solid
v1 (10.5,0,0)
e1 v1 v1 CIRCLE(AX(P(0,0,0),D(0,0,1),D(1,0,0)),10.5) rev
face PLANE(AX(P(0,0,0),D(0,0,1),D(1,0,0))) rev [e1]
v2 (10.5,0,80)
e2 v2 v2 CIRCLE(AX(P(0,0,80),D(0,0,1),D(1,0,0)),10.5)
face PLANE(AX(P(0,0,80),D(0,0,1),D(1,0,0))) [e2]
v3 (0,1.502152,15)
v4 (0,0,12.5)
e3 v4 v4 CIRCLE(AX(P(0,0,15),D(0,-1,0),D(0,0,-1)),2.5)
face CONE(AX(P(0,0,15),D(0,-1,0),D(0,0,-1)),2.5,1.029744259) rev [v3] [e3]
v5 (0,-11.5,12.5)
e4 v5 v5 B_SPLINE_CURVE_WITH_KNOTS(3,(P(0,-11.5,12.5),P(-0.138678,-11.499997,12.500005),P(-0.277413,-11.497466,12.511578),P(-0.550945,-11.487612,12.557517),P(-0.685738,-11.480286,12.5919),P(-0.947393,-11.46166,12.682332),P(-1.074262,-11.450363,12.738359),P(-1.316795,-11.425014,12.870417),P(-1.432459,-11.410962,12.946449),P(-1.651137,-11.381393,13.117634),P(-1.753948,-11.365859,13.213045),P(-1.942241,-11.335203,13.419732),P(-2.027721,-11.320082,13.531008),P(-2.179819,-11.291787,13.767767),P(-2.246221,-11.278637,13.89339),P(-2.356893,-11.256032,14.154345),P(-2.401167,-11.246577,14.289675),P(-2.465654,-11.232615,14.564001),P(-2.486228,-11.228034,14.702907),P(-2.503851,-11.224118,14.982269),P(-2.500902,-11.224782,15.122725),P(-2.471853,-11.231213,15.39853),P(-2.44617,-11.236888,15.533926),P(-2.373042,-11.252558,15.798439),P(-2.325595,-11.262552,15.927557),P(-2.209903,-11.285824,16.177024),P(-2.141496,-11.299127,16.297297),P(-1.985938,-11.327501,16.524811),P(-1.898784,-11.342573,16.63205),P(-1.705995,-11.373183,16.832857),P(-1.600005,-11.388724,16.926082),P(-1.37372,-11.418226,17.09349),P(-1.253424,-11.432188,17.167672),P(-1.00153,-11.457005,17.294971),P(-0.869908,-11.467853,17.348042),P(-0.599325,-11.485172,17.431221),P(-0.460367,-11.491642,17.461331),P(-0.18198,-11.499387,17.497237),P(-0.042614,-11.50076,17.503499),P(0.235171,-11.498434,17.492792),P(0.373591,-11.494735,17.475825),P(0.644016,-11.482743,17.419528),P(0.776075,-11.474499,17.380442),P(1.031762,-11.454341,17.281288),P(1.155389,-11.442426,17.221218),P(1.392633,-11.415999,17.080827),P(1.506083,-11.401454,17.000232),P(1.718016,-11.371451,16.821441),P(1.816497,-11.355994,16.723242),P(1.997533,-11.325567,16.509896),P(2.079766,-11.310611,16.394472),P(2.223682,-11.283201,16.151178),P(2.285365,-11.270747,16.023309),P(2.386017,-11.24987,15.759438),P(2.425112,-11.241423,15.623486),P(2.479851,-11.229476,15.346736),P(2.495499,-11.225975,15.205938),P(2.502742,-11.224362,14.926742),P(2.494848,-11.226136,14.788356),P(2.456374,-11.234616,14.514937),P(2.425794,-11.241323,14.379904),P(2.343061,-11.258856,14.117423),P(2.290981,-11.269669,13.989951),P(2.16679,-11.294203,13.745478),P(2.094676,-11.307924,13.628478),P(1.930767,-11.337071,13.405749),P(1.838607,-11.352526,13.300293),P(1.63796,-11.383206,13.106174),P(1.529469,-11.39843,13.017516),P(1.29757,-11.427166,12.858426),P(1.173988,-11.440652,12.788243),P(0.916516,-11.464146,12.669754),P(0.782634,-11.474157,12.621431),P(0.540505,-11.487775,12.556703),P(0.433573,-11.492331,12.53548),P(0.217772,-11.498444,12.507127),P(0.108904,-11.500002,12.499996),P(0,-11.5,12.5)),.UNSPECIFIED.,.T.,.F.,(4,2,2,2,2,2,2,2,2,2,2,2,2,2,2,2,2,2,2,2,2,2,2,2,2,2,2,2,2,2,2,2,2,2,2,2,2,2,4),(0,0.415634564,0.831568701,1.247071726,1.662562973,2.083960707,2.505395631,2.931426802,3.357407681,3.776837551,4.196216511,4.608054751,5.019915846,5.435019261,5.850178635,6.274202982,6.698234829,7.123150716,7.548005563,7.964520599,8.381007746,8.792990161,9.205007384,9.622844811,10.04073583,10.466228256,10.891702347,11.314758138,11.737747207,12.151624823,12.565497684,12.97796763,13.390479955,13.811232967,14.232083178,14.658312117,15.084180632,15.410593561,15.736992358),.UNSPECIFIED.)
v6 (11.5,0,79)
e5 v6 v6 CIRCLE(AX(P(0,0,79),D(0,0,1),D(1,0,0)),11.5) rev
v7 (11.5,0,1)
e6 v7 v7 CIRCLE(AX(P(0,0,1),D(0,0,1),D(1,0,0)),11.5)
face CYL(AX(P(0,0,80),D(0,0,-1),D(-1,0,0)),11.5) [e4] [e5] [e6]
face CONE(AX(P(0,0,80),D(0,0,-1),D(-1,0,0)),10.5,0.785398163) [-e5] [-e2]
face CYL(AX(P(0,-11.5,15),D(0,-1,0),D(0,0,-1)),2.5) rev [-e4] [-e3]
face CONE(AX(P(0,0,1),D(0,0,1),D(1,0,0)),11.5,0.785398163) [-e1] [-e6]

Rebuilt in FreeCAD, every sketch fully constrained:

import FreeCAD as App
import Part
import Sketcher
Q = App.Units.Quantity


def edges_at(feature, points):
    """Names of the edges that pass closest to the given points."""
    edges = feature.Shape.Edges
    near = lambda p: min(range(len(edges)), key=lambda i: edges[i].distToShape(Part.Vertex(*p))[0])
    return sorted({f"Edge{near(p) + 1}" for p in points})

doc = App.newDocument("Part")
params = doc.addObject("Spreadsheet::Sheet", "Params")
for row, (alias, value) in enumerate([
    ("sketch1_diameter", "23 mm"),
    ("pad1_length", "80 mm"),
    ("chamfer_size", "1 mm"),
    ("sketch2_diameter", "5 mm"),
    ("hole_diameter", "5 mm"),
    ("hole_depth", "11.5 mm"),
], start=1):
    params.set(f"A{row}", alias)
    params.set(f"B{row}", "=" + value)
    params.setAlias(f"B{row}", alias)

body = doc.addObject("PartDesign::Body", "Body")

sketch1 = body.newObject("Sketcher::SketchObject", "Sketch")
sketch1.AttachmentSupport = (doc.getObject("XY_Plane"), [""])
sketch1.MapMode = "FlatFace"
sketch1.addGeometry(Part.Circle(App.Vector(0, 0, 0), App.Vector(0, 0, 1), 12), False)
sketch1.addConstraint([
    Sketcher.Constraint("Coincident", 0, 3, -1, 1),
    Sketcher.Constraint("Diameter", 0, Q("23 mm")),
])
sketch1.setExpression("Constraints[1]", "Params.sketch1_diameter")
pad1 = body.newObject("PartDesign::Pad", "Pad")
pad1.Profile = sketch1
pad1.setExpression("Length", "Params.pad1_length")
doc.recompute()

chamfer = body.newObject("PartDesign::Chamfer", "Chamfer")
chamfer.Base = (pad1, edges_at(pad1, [(-11.5, 0, 0), (-11.5, 0, 80)]))
chamfer.setExpression("Size", "Params.chamfer_size")

sketch2 = body.newObject("Sketcher::SketchObject", "Sketch001")
sketch2.AttachmentSupport = (doc.getObject("XZ_Plane"), [""])
sketch2.MapMode = "FlatFace"
sketch2.AttachmentOffset = App.Placement(App.Vector(0, 0, 11.5), App.Rotation())
sketch2.addGeometry(Part.Circle(App.Vector(0, 15, 0), App.Vector(0, 0, 1), 2.5), False)
sketch2.addConstraint([
    Sketcher.Constraint("PointOnObject", 0, 3, -2),
    Sketcher.Constraint("Diameter", 0, Q("5 mm")),
    Sketcher.Constraint("DistanceY", -1, 1, 0, 3, Q("15 mm")),
])
sketch2.setExpression("Constraints[1]", "Params.sketch2_diameter")
doc.recompute()
hole = body.newObject("PartDesign::Hole", "Hole")
hole.Profile = sketch2
hole.ThreadType = "None"
hole.setExpression("Diameter", "Params.hole_diameter")
hole.DepthType = "Dimension"
hole.setExpression("Depth", "Params.hole_depth")
hole.DrillPoint = "Angled"
hole.DrillPointAngle = 118

doc.recompute()
